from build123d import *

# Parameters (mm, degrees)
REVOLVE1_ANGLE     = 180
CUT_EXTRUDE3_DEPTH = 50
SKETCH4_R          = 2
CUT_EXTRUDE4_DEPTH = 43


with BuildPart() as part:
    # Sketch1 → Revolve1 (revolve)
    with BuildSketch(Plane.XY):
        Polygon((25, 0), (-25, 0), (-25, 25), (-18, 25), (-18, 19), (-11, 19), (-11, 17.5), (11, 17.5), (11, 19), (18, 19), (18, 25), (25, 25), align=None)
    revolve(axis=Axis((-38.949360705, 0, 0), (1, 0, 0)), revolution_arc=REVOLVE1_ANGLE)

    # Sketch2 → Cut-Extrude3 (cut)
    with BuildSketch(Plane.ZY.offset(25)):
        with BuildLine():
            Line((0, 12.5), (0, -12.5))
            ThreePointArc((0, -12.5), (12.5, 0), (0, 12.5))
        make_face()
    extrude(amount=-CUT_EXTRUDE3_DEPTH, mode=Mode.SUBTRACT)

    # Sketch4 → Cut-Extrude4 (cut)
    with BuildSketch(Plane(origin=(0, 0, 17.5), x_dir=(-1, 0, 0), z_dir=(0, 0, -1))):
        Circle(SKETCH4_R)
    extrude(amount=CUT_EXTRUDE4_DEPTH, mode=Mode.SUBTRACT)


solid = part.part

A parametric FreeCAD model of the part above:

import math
import FreeCAD as App
import Part
import Sketcher

V = App.Vector


def add_polygon(sketch, points):
    """Adds a closed chain of lines whose ends are joined by coincident constraints."""
    first, n = sketch.GeometryCount, len(points)
    for a, b in zip(points, points[1:] + points[:1]):
        sketch.addGeometry(Part.LineSegment(App.Vector(*a, 0), App.Vector(*b, 0)), False)
    for i in range(n):
        sketch.addConstraint(Sketcher.Constraint("Coincident", first + i, 2, first + (i + 1) % n, 1))

doc = App.newDocument("Part")
body = doc.addObject("PartDesign::Body", "Body")

# Sketch on XY plane
sketch1 = body.newObject("Sketcher::SketchObject", "Sketch")
sketch1.AttachmentSupport = (doc.getObject("XY_Plane"), [""])
sketch1.MapMode = "FlatFace"
add_polygon(sketch1, [(-25, 0), (25, 0), (25, 25), (18, 25), (18, 19), (11, 19), (11, 17.5), (-11, 17.5), (-11, 19), (-18, 19), (-18, 25), (-25, 25)])  # lines 0-11
sketch1.addConstraint(Sketcher.Constraint("Horizontal", 0))
sketch1.addConstraint(Sketcher.Constraint("Vertical", 1))
sketch1.addConstraint(Sketcher.Constraint("Horizontal", 2))
sketch1.addConstraint(Sketcher.Constraint("Vertical", 3))
sketch1.addConstraint(Sketcher.Constraint("Horizontal", 4))
sketch1.addConstraint(Sketcher.Constraint("Vertical", 5))
sketch1.addConstraint(Sketcher.Constraint("Horizontal", 6))
sketch1.addConstraint(Sketcher.Constraint("Vertical", 7))
sketch1.addConstraint(Sketcher.Constraint("Horizontal", 8))
sketch1.addConstraint(Sketcher.Constraint("Vertical", 9))
sketch1.addConstraint(Sketcher.Constraint("Horizontal", 10))
sketch1.addConstraint(Sketcher.Constraint("Vertical", 11))
sketch1.addConstraint(Sketcher.Constraint("Symmetric", 0, 2, 11, 2, -1, 1))
sketch1.addConstraint(Sketcher.Constraint("Symmetric", 4, 2, 7, 2, -2))
sketch1.addConstraint(Sketcher.Constraint("Symmetric", 2, 2, 9, 2, -2))
sketch1.addConstraint(Sketcher.Constraint("Equal", 2, 4))
sketch1.addConstraint(Sketcher.Constraint("DistanceX", 0, 1, 0, 2, 50.0))
sketch1.addConstraint(Sketcher.Constraint("DistanceX", 2, 2, 2, 1, 7.0))
sketch1.addConstraint(Sketcher.Constraint("DistanceY", 1, 1, 1, 2, 25.0))
sketch1.addConstraint(Sketcher.Constraint("DistanceY", 3, 2, 3, 1, 6.0))
sketch1.addConstraint(Sketcher.Constraint("DistanceY", 5, 2, 5, 1, 1.5))
revolution = body.newObject("PartDesign::Revolution", "Revolution")
revolution.Profile = sketch1
revolution.ReferenceAxis = (sketch1, ["H_Axis"])
revolution.Angle = 180

# Sketch on YZ plane
sketch2 = body.newObject("Sketcher::SketchObject", "Sketch001")
sketch2.AttachmentSupport = (doc.getObject("YZ_Plane"), [""])
sketch2.MapMode = "FlatFace"
sketch2.AttachmentOffset = App.Placement(V(0, 0, -25), App.Rotation())
sketch2.addGeometry(Part.LineSegment(V(12, 0, 0), V(-12, 0, 0)), False)
sketch2.addGeometry(Part.ArcOfCircle(Part.Circle(V(0, 0, 0), V(0, 0, 1), 12), math.radians(0), math.radians(180)), False)
sketch2.addConstraint(Sketcher.Constraint("Coincident", 0, 1, 1, 1))
sketch2.addConstraint(Sketcher.Constraint("Coincident", 1, 2, 0, 2))
sketch2.addConstraint(Sketcher.Constraint("Horizontal", 0))
sketch2.addConstraint(Sketcher.Constraint("Coincident", 1, 3, -1, 1))
sketch2.addConstraint(Sketcher.Constraint("PointOnObject", 0, 1, -1))
sketch2.addConstraint(Sketcher.Constraint("Radius", 1, 12.5))
pocket1 = body.newObject("PartDesign::Pocket", "Pocket")
pocket1.Profile = sketch2
pocket1.Length = 50
pocket1.Reversed = True

# Sketch on XY plane
sketch3 = body.newObject("Sketcher::SketchObject", "Sketch002")
sketch3.AttachmentSupport = (doc.getObject("XY_Plane"), [""])
sketch3.MapMode = "FlatFace"
sketch3.AttachmentOffset = App.Placement(V(0, 0, 17.5), App.Rotation())
sketch3.addGeometry(Part.Circle(V(0, 0, 0), V(0, 0, 1), 2), False)
sketch3.addConstraint(Sketcher.Constraint("Coincident", 0, 3, -1, 1))
sketch3.addConstraint(Sketcher.Constraint("Diameter", 0, 4.0))
pocket2 = body.newObject("PartDesign::Pocket", "Pocket001")
pocket2.Profile = sketch3
pocket2.Length = 43

doc.recompute()
